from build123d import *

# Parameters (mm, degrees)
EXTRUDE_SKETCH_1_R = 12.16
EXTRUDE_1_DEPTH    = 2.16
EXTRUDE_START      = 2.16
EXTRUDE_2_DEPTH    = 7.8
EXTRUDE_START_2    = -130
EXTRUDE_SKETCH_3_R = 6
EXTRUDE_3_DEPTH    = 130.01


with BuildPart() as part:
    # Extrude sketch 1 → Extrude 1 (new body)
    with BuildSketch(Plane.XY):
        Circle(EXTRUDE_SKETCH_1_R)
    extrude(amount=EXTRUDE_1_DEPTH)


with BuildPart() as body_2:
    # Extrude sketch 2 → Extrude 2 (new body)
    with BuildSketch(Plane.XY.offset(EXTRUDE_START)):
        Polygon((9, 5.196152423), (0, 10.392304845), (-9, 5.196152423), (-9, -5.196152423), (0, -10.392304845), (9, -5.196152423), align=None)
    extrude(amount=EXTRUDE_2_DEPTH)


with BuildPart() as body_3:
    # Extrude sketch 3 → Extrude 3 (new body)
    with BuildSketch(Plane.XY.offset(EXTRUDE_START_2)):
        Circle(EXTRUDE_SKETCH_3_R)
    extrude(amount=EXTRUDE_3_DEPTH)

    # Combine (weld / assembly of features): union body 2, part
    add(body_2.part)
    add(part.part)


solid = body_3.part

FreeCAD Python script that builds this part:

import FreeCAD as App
import Part
import Sketcher
Q = App.Units.Quantity


def add_polygon(sketch, points):
    """Adds a closed chain of lines whose ends are joined by coincident constraints."""
    first, n = sketch.GeometryCount, len(points)
    for a, b in zip(points, points[1:] + points[:1]):
        sketch.addGeometry(Part.LineSegment(App.Vector(*a, 0), App.Vector(*b, 0)), False)
    for i in range(n):
        sketch.addConstraint(Sketcher.Constraint("Coincident", first + i, 2, first + (i + 1) % n, 1))

doc = App.newDocument("Part")
body = doc.addObject("PartDesign::Body", "Body")

# Sketch on XY plane
sketch1 = doc.addObject("Sketcher::SketchObject", "Sketch")
body.addObject(sketch1)
sketch1.AttachmentSupport = (doc.XY_Plane, [""])
sketch1.MapMode = "FlatFace"
sketch1.addGeometry(Part.Circle(App.Vector(0, 0, 0), App.Vector(0, 0, 1), 12), False)
sketch1.addConstraint([
    Sketcher.Constraint("Coincident", 0, 3, -1, 1),
    Sketcher.Constraint("Diameter", 0, Q("24.32 mm")),
])
pad1 = doc.addObject("PartDesign::Pad", "Pad")
body.addObject(pad1)
pad1.Profile = sketch1
pad1.Length = 2.16
body2 = doc.addObject("PartDesign::Body", "Body001")

# Sketch on XY plane
sketch2 = doc.addObject("Sketcher::SketchObject", "Sketch001")
body2.addObject(sketch2)
sketch2.AttachmentSupport = (doc.getObject("XY_Plane001"), [""])
sketch2.MapMode = "FlatFace"
sketch2.AttachmentOffset = App.Placement(App.Vector(0, 0, 2.16), App.Rotation())
add_polygon(sketch2, [(9, 5), (0, 10), (-9, 5), (-9, -5), (0, -10), (9, -5)])  # lines 0-5
sketch2.addConstraint([
    Sketcher.Constraint("Vertical", 2),
    Sketcher.Constraint("Vertical", 5),
    Sketcher.Constraint("Symmetric", 0, 2, 3, 2, -1, 1),
    Sketcher.Constraint("Symmetric", 1, 2, 4, 2, -1, 1),
    Sketcher.Constraint("PointOnObject", 0, 2, -2),
    Sketcher.Constraint("Parallel", 0, 3),
    Sketcher.Constraint("Horizontal", 2, 2, 4, 2),
    Sketcher.Constraint("Angle", 0, Q("150 deg")),
    Sketcher.Constraint("DistanceX", 1, 2, -1, 1, Q("9 mm")),
    Sketcher.Constraint("DistanceY", 2, 2, 2, 1, Q("10.392305 mm")),
])
pad2 = doc.addObject("PartDesign::Pad", "Pad001")
body2.addObject(pad2)
pad2.Profile = sketch2
pad2.Length = 7.8
body3 = doc.addObject("PartDesign::Body", "Body002")
body3.AllowCompound = True

# Sketch on XY plane
sketch3 = doc.addObject("Sketcher::SketchObject", "Sketch002")
body3.addObject(sketch3)
sketch3.AttachmentSupport = (doc.getObject("XY_Plane002"), [""])
sketch3.MapMode = "FlatFace"
sketch3.AttachmentOffset = App.Placement(App.Vector(0, 0, -130), App.Rotation())
sketch3.addGeometry(Part.Circle(App.Vector(0, 0, 0), App.Vector(0, 0, 1), 6), False)
sketch3.addConstraint([
    Sketcher.Constraint("Coincident", 0, 3, -1, 1),
    Sketcher.Constraint("Diameter", 0, Q("12 mm")),
])
pad3 = doc.addObject("PartDesign::Pad", "Pad002")
body3.addObject(pad3)
pad3.Profile = sketch3
pad3.Length = 130.01
doc.recompute()

boolean = doc.addObject("PartDesign::Boolean", "Boolean")
body3.addObject(boolean)
boolean.Type = "Fuse"
boolean.addObjects([body2])
doc.recompute()

boolean2 = doc.addObject("PartDesign::Boolean", "Boolean001")
body3.addObject(boolean2)
boolean2.Type = "Fuse"
boolean2.addObjects([body])

doc.recompute()
